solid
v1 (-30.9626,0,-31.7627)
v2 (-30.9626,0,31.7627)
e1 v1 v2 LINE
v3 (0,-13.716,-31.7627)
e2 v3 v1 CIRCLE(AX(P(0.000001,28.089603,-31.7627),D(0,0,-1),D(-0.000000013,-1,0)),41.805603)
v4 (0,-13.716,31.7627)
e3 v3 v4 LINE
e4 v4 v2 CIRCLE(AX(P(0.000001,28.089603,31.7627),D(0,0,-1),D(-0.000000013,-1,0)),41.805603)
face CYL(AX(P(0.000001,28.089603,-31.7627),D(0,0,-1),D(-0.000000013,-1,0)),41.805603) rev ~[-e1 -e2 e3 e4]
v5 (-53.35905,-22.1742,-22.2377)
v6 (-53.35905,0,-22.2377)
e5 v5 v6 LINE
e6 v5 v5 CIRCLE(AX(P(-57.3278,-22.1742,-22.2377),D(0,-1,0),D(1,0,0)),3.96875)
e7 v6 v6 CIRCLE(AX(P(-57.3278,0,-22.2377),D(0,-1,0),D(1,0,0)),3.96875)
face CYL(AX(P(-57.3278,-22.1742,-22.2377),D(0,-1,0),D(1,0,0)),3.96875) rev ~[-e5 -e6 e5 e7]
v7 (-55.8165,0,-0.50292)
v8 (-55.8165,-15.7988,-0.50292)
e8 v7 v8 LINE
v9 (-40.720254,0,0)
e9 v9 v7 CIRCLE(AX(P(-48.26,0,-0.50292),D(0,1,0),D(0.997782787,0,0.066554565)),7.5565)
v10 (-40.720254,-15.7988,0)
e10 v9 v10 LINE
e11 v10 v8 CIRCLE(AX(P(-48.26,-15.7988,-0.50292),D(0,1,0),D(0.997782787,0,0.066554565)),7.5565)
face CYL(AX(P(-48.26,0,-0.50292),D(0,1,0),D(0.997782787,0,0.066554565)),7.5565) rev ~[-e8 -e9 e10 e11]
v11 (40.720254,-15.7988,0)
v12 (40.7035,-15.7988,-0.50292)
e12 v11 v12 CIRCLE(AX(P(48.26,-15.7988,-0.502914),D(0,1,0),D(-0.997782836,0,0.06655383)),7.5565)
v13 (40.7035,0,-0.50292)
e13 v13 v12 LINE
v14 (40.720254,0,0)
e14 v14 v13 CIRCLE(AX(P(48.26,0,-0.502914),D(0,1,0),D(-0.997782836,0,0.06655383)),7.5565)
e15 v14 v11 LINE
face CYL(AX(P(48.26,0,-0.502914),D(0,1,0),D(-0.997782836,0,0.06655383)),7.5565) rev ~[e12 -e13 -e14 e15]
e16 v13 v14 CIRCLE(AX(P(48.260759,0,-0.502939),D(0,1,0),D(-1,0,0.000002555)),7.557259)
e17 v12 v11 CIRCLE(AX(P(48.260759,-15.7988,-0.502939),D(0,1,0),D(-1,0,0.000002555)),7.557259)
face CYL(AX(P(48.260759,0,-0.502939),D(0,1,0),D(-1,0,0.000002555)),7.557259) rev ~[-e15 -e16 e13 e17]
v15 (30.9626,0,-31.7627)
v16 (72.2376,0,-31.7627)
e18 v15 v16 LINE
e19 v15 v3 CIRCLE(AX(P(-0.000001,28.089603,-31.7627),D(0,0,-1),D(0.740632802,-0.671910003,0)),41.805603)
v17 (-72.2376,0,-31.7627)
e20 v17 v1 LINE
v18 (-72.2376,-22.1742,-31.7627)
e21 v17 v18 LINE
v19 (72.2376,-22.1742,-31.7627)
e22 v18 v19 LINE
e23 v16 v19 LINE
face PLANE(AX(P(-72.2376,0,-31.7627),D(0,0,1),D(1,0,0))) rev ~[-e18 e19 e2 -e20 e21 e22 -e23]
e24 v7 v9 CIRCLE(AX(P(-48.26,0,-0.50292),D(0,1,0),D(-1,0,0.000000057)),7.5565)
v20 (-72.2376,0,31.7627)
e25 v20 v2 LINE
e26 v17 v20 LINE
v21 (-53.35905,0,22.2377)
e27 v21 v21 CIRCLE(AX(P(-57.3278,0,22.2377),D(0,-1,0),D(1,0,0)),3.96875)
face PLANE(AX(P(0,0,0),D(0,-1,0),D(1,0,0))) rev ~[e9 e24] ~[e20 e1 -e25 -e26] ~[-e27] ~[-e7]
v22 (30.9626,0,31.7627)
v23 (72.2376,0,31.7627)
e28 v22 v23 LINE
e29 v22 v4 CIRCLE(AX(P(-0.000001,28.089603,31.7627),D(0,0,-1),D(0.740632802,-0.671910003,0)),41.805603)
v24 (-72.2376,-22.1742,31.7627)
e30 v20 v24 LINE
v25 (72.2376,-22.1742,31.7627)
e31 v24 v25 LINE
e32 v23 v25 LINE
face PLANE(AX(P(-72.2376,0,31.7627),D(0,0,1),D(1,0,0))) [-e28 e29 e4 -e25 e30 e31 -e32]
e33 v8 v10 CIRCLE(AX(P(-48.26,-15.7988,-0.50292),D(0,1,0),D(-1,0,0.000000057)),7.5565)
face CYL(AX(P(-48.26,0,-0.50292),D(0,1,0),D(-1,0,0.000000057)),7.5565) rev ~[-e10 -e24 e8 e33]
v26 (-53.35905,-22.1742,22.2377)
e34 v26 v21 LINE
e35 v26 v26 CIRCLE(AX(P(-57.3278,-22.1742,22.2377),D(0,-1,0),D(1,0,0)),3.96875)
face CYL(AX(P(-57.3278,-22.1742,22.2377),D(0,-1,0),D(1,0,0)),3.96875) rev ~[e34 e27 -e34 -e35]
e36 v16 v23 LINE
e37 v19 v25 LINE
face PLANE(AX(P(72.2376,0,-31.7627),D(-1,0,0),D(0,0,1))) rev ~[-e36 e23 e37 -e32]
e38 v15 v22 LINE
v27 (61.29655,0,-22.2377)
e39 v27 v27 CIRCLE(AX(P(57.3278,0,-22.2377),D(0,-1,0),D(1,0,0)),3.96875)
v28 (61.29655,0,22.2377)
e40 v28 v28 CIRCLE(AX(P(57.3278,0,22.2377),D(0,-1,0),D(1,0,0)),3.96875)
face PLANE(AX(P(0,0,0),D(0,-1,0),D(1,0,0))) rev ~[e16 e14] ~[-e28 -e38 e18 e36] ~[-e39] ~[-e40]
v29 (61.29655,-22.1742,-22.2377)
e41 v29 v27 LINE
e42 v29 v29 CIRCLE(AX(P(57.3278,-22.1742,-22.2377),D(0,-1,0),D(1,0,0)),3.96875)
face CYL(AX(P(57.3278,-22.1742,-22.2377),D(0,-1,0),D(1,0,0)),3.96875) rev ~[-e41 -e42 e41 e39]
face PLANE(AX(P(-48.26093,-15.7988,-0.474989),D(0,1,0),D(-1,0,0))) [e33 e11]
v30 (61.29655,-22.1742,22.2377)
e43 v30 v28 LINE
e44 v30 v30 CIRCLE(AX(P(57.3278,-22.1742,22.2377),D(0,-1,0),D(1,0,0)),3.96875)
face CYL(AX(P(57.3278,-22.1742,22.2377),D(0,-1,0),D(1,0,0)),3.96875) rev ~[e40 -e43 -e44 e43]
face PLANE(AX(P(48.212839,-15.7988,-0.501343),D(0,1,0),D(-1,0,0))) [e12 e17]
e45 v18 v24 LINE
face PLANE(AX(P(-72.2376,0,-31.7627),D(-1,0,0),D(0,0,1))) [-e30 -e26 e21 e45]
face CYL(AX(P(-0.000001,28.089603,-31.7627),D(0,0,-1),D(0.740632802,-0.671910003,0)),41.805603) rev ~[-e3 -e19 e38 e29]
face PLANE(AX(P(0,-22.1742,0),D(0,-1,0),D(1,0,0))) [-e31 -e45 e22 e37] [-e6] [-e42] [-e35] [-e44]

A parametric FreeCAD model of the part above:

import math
import FreeCAD as App
import Part
import Sketcher

V = App.Vector
Q = App.Units.Quantity


def add_polygon(sketch, points):
    """Adds a closed chain of lines whose ends are joined by coincident constraints."""
    first, n = sketch.GeometryCount, len(points)
    for a, b in zip(points, points[1:] + points[:1]):
        sketch.addGeometry(Part.LineSegment(App.Vector(*a, 0), App.Vector(*b, 0)), False)
    for i in range(n):
        sketch.addConstraint(Sketcher.Constraint("Coincident", first + i, 2, first + (i + 1) % n, 1))

doc = App.newDocument("Part")
body = doc.addObject("PartDesign::Body", "Body")

sketch1 = body.newObject("Sketcher::SketchObject", "Sketch")
sketch1.AttachmentSupport = (doc.getObject("XZ_Plane"), [""])
sketch1.MapMode = "FlatFace"
add_polygon(sketch1, [(-72.2376, 31.7627), (-72.2376, -31.7627), (72.2376, -31.7627), (72.2376, 31.7627)])
sketch1.addConstraint([
    Sketcher.Constraint("Vertical", 0),
    Sketcher.Constraint("Horizontal", 1),
    Sketcher.Constraint("Vertical", 2),
    Sketcher.Constraint("Horizontal", 3),
    Sketcher.Constraint("Symmetric", 0, 2, 2, 2, -1, 1),
    Sketcher.Constraint("DistanceX", 1, 1, 1, 2, Q("5.688 in")),
    Sketcher.Constraint("DistanceY", 0, 2, 0, 1, Q("2.501 in")),
])
pad1 = body.newObject("PartDesign::Pad", "Pad")
pad1.Profile = sketch1
pad1.Length = Q("0.873 in")

sketch2 = body.newObject("Sketcher::SketchObject", "Sketch001")
sketch2.AttachmentSupport = (doc.getObject("XZ_Plane"), [""])
sketch2.MapMode = "FlatFace"
sketch2.AttachmentOffset = App.Placement(V(0, 0, 0.873 * 25.4), App.Rotation())
sketch2.addGeometry([
    Part.Circle(V(-57.3278, 22.2377, 0), V(0, 0, 1), 3.96875),
    Part.Circle(V(-57.3278, -22.2377, 0), V(0, 0, 1), 3.96875),
    Part.Circle(V(57.3278, -22.2377, 0), V(0, 0, 1), 3.96875),
    Part.Circle(V(57.3278, 22.2377, 0), V(0, 0, 1), 3.96875),
], False)
sketch2.addConstraint([
    Sketcher.Constraint("Equal", 0, 1),
    Sketcher.Constraint("Equal", 1, 2),
    Sketcher.Constraint("Equal", 2, 3),
    Sketcher.Constraint("Symmetric", 0, 3, 2, 3, -1, 1),
    Sketcher.Constraint("Symmetric", 1, 3, 3, 3, -1, 1),
    Sketcher.Constraint("Symmetric", 1, 3, 2, 3, -2),
    Sketcher.Constraint("Diameter", 0, Q("0.3125 in")),
    Sketcher.Constraint("DistanceX", 0, 3, -1, 1, Q("2.257 in")),
    Sketcher.Constraint("DistanceY", 1, 3, 0, 3, Q("1.751 in")),
])
pocket1 = body.newObject("PartDesign::Pocket", "Pocket")
pocket1.Profile = sketch2
pocket1.Type = "ThroughAll"

sketch3 = body.newObject("Sketcher::SketchObject", "Sketch002")
sketch3.AttachmentSupport = (doc.getObject("XY_Plane"), [""])
sketch3.MapMode = "FlatFace"
sketch3.AttachmentOffset = App.Placement(V(0, 0, -1.2505 * 25.4), App.Rotation())
sketch3.addGeometry([
    Part.ArcOfCircle(Part.Circle(V(-0.000001, 28.089603, 0), V(0, 0, 1), 41.805603), math.radians(-89.999999), math.radians(-42.214651)),
    Part.ArcOfCircle(Part.Circle(V(0.000001, 28.089603, 0), V(0, 0, 1), 41.805603), math.radians(-137.785349), math.radians(-90.000001)),
    Part.LineSegment(V(-30.9626, 0, 0), V(30.9626, 0, 0)),
], False)
sketch3.addConstraint([
    Sketcher.Constraint("Tangent", 0, 1, 1, 2),
    Sketcher.Constraint("Coincident", 1, 1, 2, 1),
    Sketcher.Constraint("Coincident", 2, 2, 0, 2),
    Sketcher.Constraint("Horizontal", 2),
    Sketcher.Constraint("Equal", 0, 1),
    Sketcher.Constraint("Symmetric", 1, 1, 2, 2, -1, 1),
    Sketcher.Constraint("PointOnObject", 0, 1, -2),
    Sketcher.Constraint("DistanceX", 2, 1, 2, 2, Q("2.438 in")),
    Sketcher.Constraint("DistanceY", 0, 1, -1, 1, Q("0.54 in")),
])
pocket2 = body.newObject("PartDesign::Pocket", "Pocket001")
pocket2.Profile = sketch3
pocket2.Type = "ThroughAll"
pocket2.Reversed = True

sketch4 = body.newObject("Sketcher::SketchObject", "Sketch003")
sketch4.AttachmentSupport = (doc.getObject("XZ_Plane"), [""])
sketch4.MapMode = "FlatFace"
sketch4.addGeometry([
    Part.ArcOfCircle(Part.Circle(V(48.26, -0.502914, 0), V(0, 0, 1), 7.5565), math.radians(-179.999955), math.radians(176.183926)),
    Part.ArcOfCircle(Part.Circle(V(48.260759, -0.502939, 0), V(0, 0, 1), 7.557259), math.radians(176.184118), math.radians(179.999854)),
], False)
sketch4.addConstraint([
    Sketcher.Constraint("Coincident", 0, 1, 1, 2),
    Sketcher.Constraint("Coincident", 1, 1, 0, 2),
    Sketcher.Constraint("PointOnObject", 1, 1, -1),
    Sketcher.Constraint("DistanceX", -1, 1, 0, 3, Q("1.9 in")),
    Sketcher.Constraint("Radius", 0, Q("0.2975 in")),
    Sketcher.Constraint("Radius", 1, Q("7.557259 mm")),
    Sketcher.Constraint("DistanceY", 0, 1, -1, 1, Q("0.0198 in")),
    Sketcher.Constraint("DistanceY", 1, 3, -1, 1, Q("0.502939 mm")),
])
pocket3 = body.newObject("PartDesign::Pocket", "Pocket002")
pocket3.Profile = sketch4
pocket3.Length = Q("0.622 in")
pocket3.Reversed = True

sketch5 = body.newObject("Sketcher::SketchObject", "Sketch004")
sketch5.AttachmentSupport = (doc.getObject("XZ_Plane"), [""])
sketch5.MapMode = "FlatFace"
sketch5.addGeometry([
    Part.ArcOfCircle(Part.Circle(V(-48.26, -0.50292, 0), V(0, 0, 1), 7.5565), math.radians(-179.999997), math.radians(3.816117)),
    Part.ArcOfCircle(Part.Circle(V(-48.26, -0.50292, 0), V(0, 0, 1), 7.5565), math.radians(3.816123), math.radians(179.999997)),
], False)
sketch5.addConstraint([
    Sketcher.Constraint("Tangent", 0, 1, 1, 2),
    Sketcher.Constraint("Coincident", 1, 1, 0, 2),
    Sketcher.Constraint("PointOnObject", 1, 1, -1),
    Sketcher.Constraint("Horizontal", 1, 3, 0, 1),
    Sketcher.Constraint("DistanceX", 0, 3, -1, 1, Q("1.9 in")),
    Sketcher.Constraint("Radius", 0, Q("0.2975 in")),
    Sketcher.Constraint("DistanceY", 0, 3, -1, 1, Q("0.0198 in")),
])
pocket4 = body.newObject("PartDesign::Pocket", "Pocket003")
pocket4.Profile = sketch5
pocket4.Length = Q("0.622 in")
pocket4.Reversed = True

doc.recompute()
